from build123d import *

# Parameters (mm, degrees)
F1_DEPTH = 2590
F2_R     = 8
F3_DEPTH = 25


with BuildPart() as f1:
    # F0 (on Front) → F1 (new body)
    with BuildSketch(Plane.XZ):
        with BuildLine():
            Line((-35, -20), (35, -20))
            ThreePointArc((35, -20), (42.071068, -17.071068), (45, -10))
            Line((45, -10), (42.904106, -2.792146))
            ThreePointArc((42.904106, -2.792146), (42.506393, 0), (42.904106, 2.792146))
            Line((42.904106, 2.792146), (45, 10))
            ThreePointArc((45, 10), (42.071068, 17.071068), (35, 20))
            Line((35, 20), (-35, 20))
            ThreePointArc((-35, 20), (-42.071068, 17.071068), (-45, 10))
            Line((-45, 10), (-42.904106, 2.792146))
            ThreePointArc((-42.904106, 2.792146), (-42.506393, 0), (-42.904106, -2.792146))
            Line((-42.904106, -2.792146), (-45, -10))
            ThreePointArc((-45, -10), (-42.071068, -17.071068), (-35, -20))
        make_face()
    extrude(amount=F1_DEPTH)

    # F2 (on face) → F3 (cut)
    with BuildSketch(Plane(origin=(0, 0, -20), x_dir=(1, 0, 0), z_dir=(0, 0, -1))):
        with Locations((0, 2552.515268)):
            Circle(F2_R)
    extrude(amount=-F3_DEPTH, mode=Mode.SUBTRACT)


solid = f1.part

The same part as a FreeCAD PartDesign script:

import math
import FreeCAD as App
import Part
import Sketcher
from FreeCAD import Vector

doc = App.newDocument("Part")
body = doc.addObject("PartDesign::Body", "Body")

sketch1 = doc.addObject("Sketcher::SketchObject", "Sketch")
body.addObject(sketch1)
sketch1.AttachmentSupport = (doc.XZ_Plane, [""])
sketch1.MapMode = "FlatFace"
sketch1.addGeometry(Part.LineSegment(Vector(-35, -20, 0), Vector(35, -20, 0)), False)
sketch1.addGeometry(Part.ArcOfCircle(Part.Circle(Vector(35, -10, 0), Vector(0, 0, 1), 10), math.radians(-90), math.radians(0)), False)
sketch1.addGeometry(Part.LineSegment(Vector(45, -10, 0), Vector(43, -3, 0)), False)
sketch1.addGeometry(Part.ArcOfCircle(Part.Circle(Vector(53, 0, 0), Vector(0, 0, 1), 10), math.radians(164), math.radians(196)), False)
sketch1.addGeometry(Part.LineSegment(Vector(43, 3, 0), Vector(45, 10, 0)), False)
sketch1.addGeometry(Part.ArcOfCircle(Part.Circle(Vector(35, 10, 0), Vector(0, 0, 1), 10), math.radians(0), math.radians(90)), False)
sketch1.addGeometry(Part.LineSegment(Vector(35, 20, 0), Vector(-35, 20, 0)), False)
sketch1.addGeometry(Part.ArcOfCircle(Part.Circle(Vector(-35, 10, 0), Vector(0, 0, 1), 10), math.radians(90), math.radians(180)), False)
sketch1.addGeometry(Part.LineSegment(Vector(-45, 10, 0), Vector(-43, 3, 0)), False)
sketch1.addGeometry(Part.ArcOfCircle(Part.Circle(Vector(-53, 0, 0), Vector(0, 0, 1), 10), math.radians(-16), math.radians(16)), False)
sketch1.addGeometry(Part.LineSegment(Vector(-43, -3, 0), Vector(-45, -10, 0)), False)
sketch1.addGeometry(Part.ArcOfCircle(Part.Circle(Vector(-35, -10, 0), Vector(0, 0, 1), 10), math.radians(180), math.radians(270)), False)
sketch1.addConstraint(Sketcher.Constraint("Tangent", 0, 2, 1, 1))
sketch1.addConstraint(Sketcher.Constraint("Coincident", 1, 2, 2, 1))
sketch1.addConstraint(Sketcher.Constraint("Tangent", 2, 2, 3, 2))
sketch1.addConstraint(Sketcher.Constraint("Tangent", 3, 1, 4, 1))
sketch1.addConstraint(Sketcher.Constraint("Coincident", 4, 2, 5, 1))
sketch1.addConstraint(Sketcher.Constraint("Tangent", 5, 2, 6, 1))
sketch1.addConstraint(Sketcher.Constraint("Tangent", 6, 2, 7, 1))
sketch1.addConstraint(Sketcher.Constraint("Coincident", 7, 2, 8, 1))
sketch1.addConstraint(Sketcher.Constraint("Tangent", 8, 2, 9, 2))
sketch1.addConstraint(Sketcher.Constraint("Tangent", 9, 1, 10, 1))
sketch1.addConstraint(Sketcher.Constraint("Coincident", 10, 2, 11, 1))
sketch1.addConstraint(Sketcher.Constraint("Tangent", 11, 2, 0, 1))
sketch1.addConstraint(Sketcher.Constraint("Horizontal", 0))
sketch1.addConstraint(Sketcher.Constraint("Horizontal", 6))
sketch1.addConstraint(Sketcher.Constraint("Equal", 1, 5))
sketch1.addConstraint(Sketcher.Constraint("Equal", 5, 7))
sketch1.addConstraint(Sketcher.Constraint("Equal", 3, 9))
sketch1.addConstraint(Sketcher.Constraint("Equal", 7, 11))
sketch1.addConstraint(Sketcher.Constraint("Symmetric", 1, 3, 7, 3, -1, 1))
sketch1.addConstraint(Sketcher.Constraint("Symmetric", 3, 3, 9, 3, -1, 1))
sketch1.addConstraint(Sketcher.Constraint("Symmetric", 4, 2, 10, 2, -1, 1))
sketch1.addConstraint(Sketcher.Constraint("Symmetric", 4, 2, 7, 2, -2))
sketch1.addConstraint(Sketcher.Constraint("Symmetric", 2, 2, 9, 1, -2))
sketch1.addConstraint(Sketcher.Constraint("Horizontal", 11, 3, 1, 2))
sketch1.addConstraint(Sketcher.Constraint("Radius", 1, 9.999999))
sketch1.addConstraint(Sketcher.Constraint("DistanceX", 0, 1, 0, 2, 70.0))
sketch1.addConstraint(Sketcher.Constraint("DistanceY", 1, 3, -1, 1, 10.000001))
sketch1.addConstraint(Sketcher.Constraint("Radius", 3, 9.999994))
sketch1.addConstraint(Sketcher.Constraint("DistanceX", 2, 2, 3, 3, 9.602281))
pad1 = doc.addObject("PartDesign::Pad", "Pad")
body.addObject(pad1)
pad1.Profile = sketch1
pad1.Length = 2590

sketch2 = doc.addObject("Sketcher::SketchObject", "Sketch001")
body.addObject(sketch2)
sketch2.AttachmentSupport = (doc.XY_Plane, [""])
sketch2.MapMode = "FlatFace"
sketch2.AttachmentOffset = App.Placement(Vector(0, 0, -20), App.Rotation())
sketch2.addGeometry(Part.Circle(Vector(0, -2553, 0), Vector(0, 0, 1), 8), False)
sketch2.addConstraint(Sketcher.Constraint("PointOnObject", 0, 3, -2))
sketch2.addConstraint(Sketcher.Constraint("Diameter", 0, 16.0))
sketch2.addConstraint(Sketcher.Constraint("DistanceY", 0, 3, -1, 1, 2552.515268))
pocket1 = doc.addObject("PartDesign::Pocket", "Pocket")
body.addObject(pocket1)
pocket1.Profile = sketch2
pocket1.Length = 25
pocket1.Reversed = True

doc.recompute()
